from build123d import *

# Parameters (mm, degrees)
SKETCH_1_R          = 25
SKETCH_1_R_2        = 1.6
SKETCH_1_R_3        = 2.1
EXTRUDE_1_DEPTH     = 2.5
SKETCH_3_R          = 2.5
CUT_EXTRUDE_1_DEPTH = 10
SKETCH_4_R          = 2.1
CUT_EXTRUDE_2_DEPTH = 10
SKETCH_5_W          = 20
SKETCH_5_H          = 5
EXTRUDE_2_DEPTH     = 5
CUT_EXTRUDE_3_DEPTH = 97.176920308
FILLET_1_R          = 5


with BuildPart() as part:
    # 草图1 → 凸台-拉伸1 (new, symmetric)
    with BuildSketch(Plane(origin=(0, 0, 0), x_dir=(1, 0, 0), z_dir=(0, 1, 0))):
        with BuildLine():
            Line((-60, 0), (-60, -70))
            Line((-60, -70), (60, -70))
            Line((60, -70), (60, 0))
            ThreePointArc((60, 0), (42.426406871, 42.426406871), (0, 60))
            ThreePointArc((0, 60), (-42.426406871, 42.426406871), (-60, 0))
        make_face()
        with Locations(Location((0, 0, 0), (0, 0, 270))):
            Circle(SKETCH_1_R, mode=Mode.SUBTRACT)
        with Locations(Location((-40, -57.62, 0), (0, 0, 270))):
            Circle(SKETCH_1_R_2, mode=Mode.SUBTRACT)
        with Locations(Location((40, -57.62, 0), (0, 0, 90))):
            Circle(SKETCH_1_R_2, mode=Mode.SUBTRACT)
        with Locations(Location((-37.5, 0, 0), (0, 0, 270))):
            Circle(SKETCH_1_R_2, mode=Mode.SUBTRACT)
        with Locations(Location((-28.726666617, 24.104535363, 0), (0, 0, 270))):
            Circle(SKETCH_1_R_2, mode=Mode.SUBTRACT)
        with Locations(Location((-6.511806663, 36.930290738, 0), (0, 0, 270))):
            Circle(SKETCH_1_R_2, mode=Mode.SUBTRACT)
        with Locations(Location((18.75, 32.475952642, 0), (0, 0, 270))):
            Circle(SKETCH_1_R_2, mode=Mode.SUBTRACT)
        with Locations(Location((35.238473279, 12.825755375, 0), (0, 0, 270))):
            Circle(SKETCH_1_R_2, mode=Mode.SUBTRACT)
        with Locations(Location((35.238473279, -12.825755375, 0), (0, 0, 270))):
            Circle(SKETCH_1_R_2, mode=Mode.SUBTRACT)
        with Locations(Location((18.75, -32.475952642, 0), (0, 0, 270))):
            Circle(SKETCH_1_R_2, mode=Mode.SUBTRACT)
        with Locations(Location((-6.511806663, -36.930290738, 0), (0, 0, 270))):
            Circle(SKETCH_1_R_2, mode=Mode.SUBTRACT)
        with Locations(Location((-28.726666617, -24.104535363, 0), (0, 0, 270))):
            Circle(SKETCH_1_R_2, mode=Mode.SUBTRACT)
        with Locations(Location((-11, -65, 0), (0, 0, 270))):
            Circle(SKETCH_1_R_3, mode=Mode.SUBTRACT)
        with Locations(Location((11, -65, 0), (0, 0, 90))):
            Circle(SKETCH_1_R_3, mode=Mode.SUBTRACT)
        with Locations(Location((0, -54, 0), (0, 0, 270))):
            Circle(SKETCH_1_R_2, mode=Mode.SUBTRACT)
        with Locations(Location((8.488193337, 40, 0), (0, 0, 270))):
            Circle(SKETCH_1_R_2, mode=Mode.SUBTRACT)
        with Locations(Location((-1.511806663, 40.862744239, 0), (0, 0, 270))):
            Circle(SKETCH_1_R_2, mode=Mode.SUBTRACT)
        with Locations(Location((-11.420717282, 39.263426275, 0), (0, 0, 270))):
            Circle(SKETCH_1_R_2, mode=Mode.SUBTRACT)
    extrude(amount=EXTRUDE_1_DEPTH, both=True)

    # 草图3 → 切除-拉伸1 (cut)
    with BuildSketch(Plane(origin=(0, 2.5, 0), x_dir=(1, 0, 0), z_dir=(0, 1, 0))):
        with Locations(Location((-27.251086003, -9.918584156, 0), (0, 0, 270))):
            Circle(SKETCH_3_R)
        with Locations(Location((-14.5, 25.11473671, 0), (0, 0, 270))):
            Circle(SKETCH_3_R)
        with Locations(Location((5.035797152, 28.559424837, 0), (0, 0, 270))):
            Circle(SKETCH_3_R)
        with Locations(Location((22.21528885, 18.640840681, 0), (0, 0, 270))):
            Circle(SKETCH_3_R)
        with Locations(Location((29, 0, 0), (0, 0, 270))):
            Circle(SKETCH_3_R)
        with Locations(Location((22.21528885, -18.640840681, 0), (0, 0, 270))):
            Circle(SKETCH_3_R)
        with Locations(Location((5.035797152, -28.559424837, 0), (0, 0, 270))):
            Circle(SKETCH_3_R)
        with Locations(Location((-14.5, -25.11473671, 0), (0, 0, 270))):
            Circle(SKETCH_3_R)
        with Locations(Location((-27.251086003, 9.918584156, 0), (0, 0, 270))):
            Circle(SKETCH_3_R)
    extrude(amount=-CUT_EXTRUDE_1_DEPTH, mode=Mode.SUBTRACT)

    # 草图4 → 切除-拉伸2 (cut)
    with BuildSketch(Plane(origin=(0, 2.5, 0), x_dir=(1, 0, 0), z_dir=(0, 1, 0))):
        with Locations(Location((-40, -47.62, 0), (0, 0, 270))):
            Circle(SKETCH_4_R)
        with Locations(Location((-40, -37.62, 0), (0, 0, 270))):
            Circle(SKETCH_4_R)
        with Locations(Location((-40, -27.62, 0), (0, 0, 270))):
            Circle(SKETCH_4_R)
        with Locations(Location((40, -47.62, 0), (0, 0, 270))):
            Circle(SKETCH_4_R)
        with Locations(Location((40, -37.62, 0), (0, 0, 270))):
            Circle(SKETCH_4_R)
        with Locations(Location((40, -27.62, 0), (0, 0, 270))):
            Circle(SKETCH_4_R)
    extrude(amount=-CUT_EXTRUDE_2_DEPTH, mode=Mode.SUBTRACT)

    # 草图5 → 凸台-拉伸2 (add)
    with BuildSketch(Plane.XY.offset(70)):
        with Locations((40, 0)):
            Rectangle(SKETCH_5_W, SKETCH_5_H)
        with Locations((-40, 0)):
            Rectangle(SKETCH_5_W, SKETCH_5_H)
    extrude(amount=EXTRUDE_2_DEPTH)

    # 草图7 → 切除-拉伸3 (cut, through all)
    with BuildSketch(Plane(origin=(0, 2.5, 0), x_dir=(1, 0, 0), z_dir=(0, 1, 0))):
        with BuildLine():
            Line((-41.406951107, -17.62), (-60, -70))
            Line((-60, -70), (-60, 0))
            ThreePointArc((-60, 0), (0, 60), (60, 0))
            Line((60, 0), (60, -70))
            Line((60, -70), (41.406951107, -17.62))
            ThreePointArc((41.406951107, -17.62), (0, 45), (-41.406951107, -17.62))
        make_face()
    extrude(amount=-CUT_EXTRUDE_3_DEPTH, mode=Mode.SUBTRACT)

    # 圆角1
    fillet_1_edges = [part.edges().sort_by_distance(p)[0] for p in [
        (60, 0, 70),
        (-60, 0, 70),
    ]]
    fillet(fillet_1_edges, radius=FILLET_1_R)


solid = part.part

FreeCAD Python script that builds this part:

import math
import FreeCAD as App
import Part
import Sketcher
from FreeCAD import Vector
Q = App.Units.Quantity


def edges_at(feature, points):
    """Names of the edges that pass closest to the given points."""
    edges = feature.Shape.Edges
    near = lambda p: min(range(len(edges)), key=lambda i: edges[i].distToShape(Part.Vertex(*p))[0])
    return sorted({f"Edge{near(p) + 1}" for p in points})


def add_polygon(sketch, points):
    """Adds a closed chain of lines whose ends are joined by coincident constraints."""
    first, n = sketch.GeometryCount, len(points)
    for a, b in zip(points, points[1:] + points[:1]):
        sketch.addGeometry(Part.LineSegment(App.Vector(*a, 0), App.Vector(*b, 0)), False)
    for i in range(n):
        sketch.addConstraint(Sketcher.Constraint("Coincident", first + i, 2, first + (i + 1) % n, 1))

doc = App.newDocument("Part")
body = doc.addObject("PartDesign::Body", "Body")

sketch1 = doc.addObject("Sketcher::SketchObject", "Sketch")
body.addObject(sketch1)
sketch1.AttachmentSupport = (doc.XZ_Plane, [""])
sketch1.MapMode = "FlatFace"
sketch1.addGeometry([
    Part.LineSegment(Vector(-60, 0, 0), Vector(-60, 70, 0)),
    Part.LineSegment(Vector(-60, 70, 0), Vector(60, 70, 0)),
    Part.LineSegment(Vector(60, 70, 0), Vector(60, 0, 0)),
    Part.ArcOfCircle(Part.Circle(Vector(0, 0, 0), Vector(0, 0, 1), 60), math.radians(-90), math.radians(0)),
    Part.ArcOfCircle(Part.Circle(Vector(0, 0, 0), Vector(0, 0, 1), 60), math.radians(-180), math.radians(-90)),
    Part.Circle(Vector(-40, 57.62, 0), Vector(0, 0, 1), 1.6),
    Part.Circle(Vector(-11, 65, 0), Vector(0, 0, 1), 2.1),
    Part.Circle(Vector(-28.726667, 24.104535, 0), Vector(0, 0, 1), 1.6),
    Part.Circle(Vector(-6.511807, 36.930291, 0), Vector(0, 0, 1), 1.6),
    Part.Circle(Vector(0, 54, 0), Vector(0, 0, 1), 1.6),
    Part.Circle(Vector(11, 65, 0), Vector(0, 0, 1), 2.1),
    Part.Circle(Vector(40, 57.62, 0), Vector(0, 0, 1), 1.6),
    Part.Circle(Vector(18.75, 32.475953, 0), Vector(0, 0, 1), 1.6),
    Part.Circle(Vector(35.238473, 12.825755, 0), Vector(0, 0, 1), 1.6),
    Part.Circle(Vector(-37.5, 0, 0), Vector(0, 0, 1), 1.6),
    Part.Circle(Vector(-28.726667, -24.104535, 0), Vector(0, 0, 1), 1.6),
    Part.Circle(Vector(-11.420717, -39.263426, 0), Vector(0, 0, 1), 1.6),
    Part.Circle(Vector(-6.511807, -36.930291, 0), Vector(0, 0, 1), 1.6),
    Part.Circle(Vector(-1.511807, -40.862744, 0), Vector(0, 0, 1), 1.6),
    Part.Circle(Vector(0, 0, 0), Vector(0, 0, 1), 25),
    Part.Circle(Vector(35.238473, -12.825755, 0), Vector(0, 0, 1), 1.6),
    Part.Circle(Vector(8.488193, -40, 0), Vector(0, 0, 1), 1.6),
    Part.Circle(Vector(18.75, -32.475953, 0), Vector(0, 0, 1), 1.6),
], False)
sketch1.addConstraint([
    Sketcher.Constraint("Coincident", 0, 2, 1, 1),
    Sketcher.Constraint("Coincident", 1, 2, 2, 1),
    Sketcher.Constraint("Tangent", 2, 2, 3, 2),
    Sketcher.Constraint("Tangent", 3, 1, 4, 2),
    Sketcher.Constraint("Tangent", 4, 1, 0, 1),
    Sketcher.Constraint("Vertical", 0),
    Sketcher.Constraint("Horizontal", 1),
    Sketcher.Constraint("Vertical", 2),
    Sketcher.Constraint("Coincident", 3, 3, -1, 1),
    Sketcher.Constraint("Coincident", 19, 3, -1, 1),
    Sketcher.Constraint("Equal", 3, 4),
    Sketcher.Constraint("Equal", 5, 7),
    Sketcher.Constraint("Equal", 7, 8),
    Sketcher.Constraint("Equal", 8, 9),
    Sketcher.Constraint("Equal", 6, 10),
    Sketcher.Constraint("Equal", 9, 11),
    Sketcher.Constraint("Equal", 11, 12),
    Sketcher.Constraint("Equal", 12, 13),
    Sketcher.Constraint("Equal", 13, 14),
    Sketcher.Constraint("Equal", 14, 15),
    Sketcher.Constraint("Equal", 15, 16),
    Sketcher.Constraint("Equal", 16, 17),
    Sketcher.Constraint("Equal", 17, 18),
    Sketcher.Constraint("Equal", 18, 20),
    Sketcher.Constraint("Equal", 20, 21),
    Sketcher.Constraint("Equal", 21, 22),
    Sketcher.Constraint("Symmetric", 6, 3, 10, 3, -2),
    Sketcher.Constraint("Symmetric", 5, 3, 11, 3, -2),
    Sketcher.Constraint("Symmetric", 7, 3, 15, 3, -1),
    Sketcher.Constraint("Symmetric", 8, 3, 17, 3, -1),
    Sketcher.Constraint("Symmetric", 13, 3, 20, 3, -1),
    Sketcher.Constraint("Symmetric", 12, 3, 22, 3, -1),
    Sketcher.Constraint("PointOnObject", 9, 3, -2),
    Sketcher.Constraint("PointOnObject", 14, 3, -1),
    Sketcher.Constraint("PointOnObject", 3, 1, -2),
    Sketcher.Constraint("Diameter", 19, Q("50 mm")),
    Sketcher.Constraint("Radius", 3, Q("60 mm")),
    Sketcher.Constraint("Diameter", 5, Q("3.2 mm")),
    Sketcher.Constraint("Diameter", 6, Q("4.2 mm")),
    Sketcher.Constraint("DistanceY", 0, 1, 0, 2, Q("70 mm")),
    Sketcher.Constraint("DistanceX", 5, 3, -1, 1, Q("40 mm")),
    Sketcher.Constraint("DistanceX", 6, 3, -1, 1, Q("11 mm")),
    Sketcher.Constraint("DistanceY", -1, 1, 6, 3, Q("65 mm")),
    Sketcher.Constraint("DistanceY", -1, 1, 9, 3, Q("54 mm")),
    Sketcher.Constraint("DistanceY", 21, 3, -1, 1, Q("40 mm")),
    Sketcher.Constraint("DistanceX", 17, 3, 18, 3, Q("5 mm")),
    Sketcher.Constraint("DistanceX", 18, 3, 21, 3, Q("10 mm")),
    Sketcher.Constraint("DistanceX", 14, 3, -1, 1, Q("37.5 mm")),
    Sketcher.Constraint("DistanceY", -1, 1, 5, 3, Q("57.62 mm")),
    Sketcher.Constraint("DistanceX", -1, 1, 12, 3, Q("18.75 mm")),
    Sketcher.Constraint("DistanceY", -1, 1, 8, 3, Q("36.930291 mm")),
    Sketcher.Constraint("DistanceX", 7, 3, 8, 3, Q("22.21486 mm")),
    Sketcher.Constraint("DistanceY", 12, 3, 8, 3, Q("4.454338 mm")),
    Sketcher.Constraint("DistanceX", 8, 3, 13, 3, Q("41.75028 mm")),
    Sketcher.Constraint("DistanceY", 15, 3, 7, 3, Q("48.209071 mm")),
    Sketcher.Constraint("DistanceX", 15, 3, 16, 3, Q("17.305949 mm")),
    Sketcher.Constraint("DistanceY", 16, 3, 15, 3, Q("15.158891 mm")),
    Sketcher.Constraint("DistanceY", 18, 3, 15, 3, Q("16.758209 mm")),
    Sketcher.Constraint("DistanceY", 20, 3, 13, 3, Q("25.651511 mm")),
    Sketcher.Constraint("DistanceX", 7, 3, -1, 1, Q("28.726667 mm")),
])
pad1 = doc.addObject("PartDesign::Pad", "Pad")
body.addObject(pad1)
pad1.Profile = sketch1
pad1.Length = 5
pad1.Midplane = True

sketch2 = doc.addObject("Sketcher::SketchObject", "Sketch001")
body.addObject(sketch2)
sketch2.AttachmentSupport = (doc.XZ_Plane, [""])
sketch2.MapMode = "FlatFace"
sketch2.AttachmentOffset = App.Placement(Vector(0, 0, -2.5), App.Rotation())
sketch2.addGeometry([
    Part.Circle(Vector(-27.251086, 9.918584, 0), Vector(0, 0, 1), 2.5),
    Part.Circle(Vector(-14.5, -25.114737, 0), Vector(0, 0, 1), 2.5),
    Part.Circle(Vector(5.035797, -28.559425, 0), Vector(0, 0, 1), 2.5),
    Part.Circle(Vector(22.215289, -18.640841, 0), Vector(0, 0, 1), 2.5),
    Part.Circle(Vector(29, 0, 0), Vector(0, 0, 1), 2.5),
    Part.Circle(Vector(22.215289, 18.640841, 0), Vector(0, 0, 1), 2.5),
    Part.Circle(Vector(5.035797, 28.559425, 0), Vector(0, 0, 1), 2.5),
    Part.Circle(Vector(-14.5, 25.114737, 0), Vector(0, 0, 1), 2.5),
    Part.Circle(Vector(-27.251086, -9.918584, 0), Vector(0, 0, 1), 2.5),
], False)
sketch2.addConstraint([
    Sketcher.Constraint("Equal", 0, 1),
    Sketcher.Constraint("Equal", 1, 2),
    Sketcher.Constraint("Equal", 2, 3),
    Sketcher.Constraint("Equal", 3, 4),
    Sketcher.Constraint("Equal", 4, 5),
    Sketcher.Constraint("Equal", 5, 6),
    Sketcher.Constraint("Equal", 6, 7),
    Sketcher.Constraint("Equal", 7, 8),
    Sketcher.Constraint("Symmetric", 3, 3, 5, 3, -1),
    Sketcher.Constraint("Symmetric", 2, 3, 6, 3, -1),
    Sketcher.Constraint("Symmetric", 1, 3, 7, 3, -1),
    Sketcher.Constraint("Symmetric", 0, 3, 8, 3, -1),
    Sketcher.Constraint("PointOnObject", 4, 3, -1),
    Sketcher.Constraint("Diameter", 0, Q("5 mm")),
    Sketcher.Constraint("DistanceX", -1, 1, 4, 3, Q("29 mm")),
    Sketcher.Constraint("DistanceX", 1, 3, -1, 1, Q("14.5 mm")),
    Sketcher.Constraint("DistanceX", -1, 1, 3, 3, Q("22.215289 mm")),
    Sketcher.Constraint("DistanceY", 3, 3, -1, 1, Q("18.640841 mm")),
    Sketcher.Constraint("DistanceY", 1, 3, 0, 3, Q("35.033321 mm")),
    Sketcher.Constraint("DistanceY", 2, 3, 1, 3, Q("3.444688 mm")),
    Sketcher.Constraint("DistanceX", 2, 3, 3, 3, Q("17.179492 mm")),
    Sketcher.Constraint("DistanceY", 0, 3, 6, 3, Q("18.640841 mm")),
    Sketcher.Constraint("DistanceX", 0, 3, -1, 1, Q("27.251086 mm")),
])
pocket1 = doc.addObject("PartDesign::Pocket", "Pocket")
body.addObject(pocket1)
pocket1.Profile = sketch2
pocket1.Length = 10
pocket1.Reversed = True

sketch3 = doc.addObject("Sketcher::SketchObject", "Sketch002")
body.addObject(sketch3)
sketch3.AttachmentSupport = (doc.XZ_Plane, [""])
sketch3.MapMode = "FlatFace"
sketch3.AttachmentOffset = App.Placement(Vector(0, 0, -2.5), App.Rotation())
sketch3.addGeometry([
    Part.Circle(Vector(-40, 47.62, 0), Vector(0, 0, 1), 2.1),
    Part.Circle(Vector(-40, 37.62, 0), Vector(0, 0, 1), 2.1),
    Part.Circle(Vector(-40, 27.62, 0), Vector(0, 0, 1), 2.1),
    Part.Circle(Vector(40, 47.62, 0), Vector(0, 0, 1), 2.1),
    Part.Circle(Vector(40, 37.62, 0), Vector(0, 0, 1), 2.1),
    Part.Circle(Vector(40, 27.62, 0), Vector(0, 0, 1), 2.1),
], False)
sketch3.addConstraint([
    Sketcher.Constraint("Equal", 0, 1),
    Sketcher.Constraint("Equal", 1, 2),
    Sketcher.Constraint("Equal", 2, 3),
    Sketcher.Constraint("Equal", 3, 4),
    Sketcher.Constraint("Equal", 4, 5),
    Sketcher.Constraint("Symmetric", 0, 3, 3, 3, -2),
    Sketcher.Constraint("Symmetric", 1, 3, 4, 3, -2),
    Sketcher.Constraint("Symmetric", 2, 3, 5, 3, -2),
    Sketcher.Constraint("Vertical", 0, 3, 1, 3),
    Sketcher.Constraint("Vertical", 1, 3, 2, 3),
    Sketcher.Constraint("Diameter", 0, Q("4.2 mm")),
    Sketcher.Constraint("DistanceX", 0, 3, -1, 1, Q("40 mm")),
    Sketcher.Constraint("DistanceY", 1, 3, 0, 3, Q("10 mm")),
    Sketcher.Constraint("DistanceY", 2, 3, 1, 3, Q("10 mm")),
    Sketcher.Constraint("DistanceY", -1, 1, 0, 3, Q("47.62 mm")),
])
pocket2 = doc.addObject("PartDesign::Pocket", "Pocket001")
body.addObject(pocket2)
pocket2.Profile = sketch3
pocket2.Length = 10
pocket2.Reversed = True

sketch4 = doc.addObject("Sketcher::SketchObject", "Sketch003")
body.addObject(sketch4)
sketch4.AttachmentSupport = (doc.XY_Plane, [""])
sketch4.MapMode = "FlatFace"
sketch4.AttachmentOffset = App.Placement(Vector(0, 0, 70), App.Rotation())
add_polygon(sketch4, [(30, 2.5), (30, -2.5), (50, -2.5), (50, 2.5)])
add_polygon(sketch4, [(-50, 2.5), (-50, -2.5), (-30, -2.5), (-30, 2.5)])
sketch4.addConstraint([
    Sketcher.Constraint("Vertical", 0),
    Sketcher.Constraint("Horizontal", 1),
    Sketcher.Constraint("Vertical", 2),
    Sketcher.Constraint("Horizontal", 3),
    Sketcher.Constraint("Vertical", 4),
    Sketcher.Constraint("Horizontal", 5),
    Sketcher.Constraint("Vertical", 6),
    Sketcher.Constraint("Horizontal", 7),
    Sketcher.Constraint("Symmetric", 2, 2, 4, 2, -1, 1),
    Sketcher.Constraint("Symmetric", 0, 2, 6, 2, -1, 1),
    Sketcher.Constraint("Horizontal", 1, 2, 4, 2),
    Sketcher.Constraint("DistanceX", 1, 1, 1, 2, Q("20 mm")),
    Sketcher.Constraint("DistanceY", 0, 2, 0, 1, Q("5 mm")),
    Sketcher.Constraint("DistanceX", -1, 1, 0, 2, Q("30 mm")),
])
pad2 = doc.addObject("PartDesign::Pad", "Pad001")
body.addObject(pad2)
pad2.Profile = sketch4
pad2.Length = 5

sketch5 = doc.addObject("Sketcher::SketchObject", "Sketch004")
body.addObject(sketch5)
sketch5.AttachmentSupport = (doc.XZ_Plane, [""])
sketch5.MapMode = "FlatFace"
sketch5.AttachmentOffset = App.Placement(Vector(0, 0, -2.5), App.Rotation())
sketch5.addGeometry([
    Part.LineSegment(Vector(-60, 70, 0), Vector(-41.406951, 17.62, 0)),
    Part.ArcOfCircle(Part.Circle(Vector(0, 0, 0), Vector(0, 0, 1), 45), math.radians(156.948675), math.radians(383.051325)),
    Part.LineSegment(Vector(41.406951, 17.62, 0), Vector(60, 70, 0)),
    Part.LineSegment(Vector(60, 70, 0), Vector(60, 0, 0)),
    Part.ArcOfCircle(Part.Circle(Vector(0, 0, 0), Vector(0, 0, 1), 60), math.radians(180), math.radians(360)),
    Part.LineSegment(Vector(-60, 0, 0), Vector(-60, 70, 0)),
], False)
sketch5.addConstraint([
    Sketcher.Constraint("Coincident", 0, 2, 1, 1),
    Sketcher.Constraint("Coincident", 1, 2, 2, 1),
    Sketcher.Constraint("Coincident", 2, 2, 3, 1),
    Sketcher.Constraint("Tangent", 3, 2, 4, 2),
    Sketcher.Constraint("Tangent", 4, 1, 5, 1),
    Sketcher.Constraint("Coincident", 5, 2, 0, 1),
    Sketcher.Constraint("Vertical", 3),
    Sketcher.Constraint("Vertical", 5),
    Sketcher.Constraint("Coincident", 1, 3, -1, 1),
    Sketcher.Constraint("Coincident", 4, 3, -1, 1),
    Sketcher.Constraint("Horizontal", 0, 2, 1, 2),
    Sketcher.Constraint("Horizontal", 2, 2, 5, 2),
    Sketcher.Constraint("Radius", 1, Q("45 mm")),
    Sketcher.Constraint("Radius", 4, Q("60 mm")),
    Sketcher.Constraint("DistanceY", 3, 2, 3, 1, Q("70 mm")),
    Sketcher.Constraint("DistanceY", -1, 1, 0, 2, Q("17.62 mm")),
])
pocket3 = doc.addObject("PartDesign::Pocket", "Pocket002")
body.addObject(pocket3)
pocket3.Profile = sketch5
pocket3.Type = "ThroughAll"
pocket3.Reversed = True
doc.recompute()

fillet = doc.addObject("PartDesign::Fillet", "Fillet")
body.addObject(fillet)
fillet.Base = (pocket3, edges_at(pocket3, [(60, 0, 70), (-60, 0, 70)]))
fillet.Radius = 5

doc.recompute()
